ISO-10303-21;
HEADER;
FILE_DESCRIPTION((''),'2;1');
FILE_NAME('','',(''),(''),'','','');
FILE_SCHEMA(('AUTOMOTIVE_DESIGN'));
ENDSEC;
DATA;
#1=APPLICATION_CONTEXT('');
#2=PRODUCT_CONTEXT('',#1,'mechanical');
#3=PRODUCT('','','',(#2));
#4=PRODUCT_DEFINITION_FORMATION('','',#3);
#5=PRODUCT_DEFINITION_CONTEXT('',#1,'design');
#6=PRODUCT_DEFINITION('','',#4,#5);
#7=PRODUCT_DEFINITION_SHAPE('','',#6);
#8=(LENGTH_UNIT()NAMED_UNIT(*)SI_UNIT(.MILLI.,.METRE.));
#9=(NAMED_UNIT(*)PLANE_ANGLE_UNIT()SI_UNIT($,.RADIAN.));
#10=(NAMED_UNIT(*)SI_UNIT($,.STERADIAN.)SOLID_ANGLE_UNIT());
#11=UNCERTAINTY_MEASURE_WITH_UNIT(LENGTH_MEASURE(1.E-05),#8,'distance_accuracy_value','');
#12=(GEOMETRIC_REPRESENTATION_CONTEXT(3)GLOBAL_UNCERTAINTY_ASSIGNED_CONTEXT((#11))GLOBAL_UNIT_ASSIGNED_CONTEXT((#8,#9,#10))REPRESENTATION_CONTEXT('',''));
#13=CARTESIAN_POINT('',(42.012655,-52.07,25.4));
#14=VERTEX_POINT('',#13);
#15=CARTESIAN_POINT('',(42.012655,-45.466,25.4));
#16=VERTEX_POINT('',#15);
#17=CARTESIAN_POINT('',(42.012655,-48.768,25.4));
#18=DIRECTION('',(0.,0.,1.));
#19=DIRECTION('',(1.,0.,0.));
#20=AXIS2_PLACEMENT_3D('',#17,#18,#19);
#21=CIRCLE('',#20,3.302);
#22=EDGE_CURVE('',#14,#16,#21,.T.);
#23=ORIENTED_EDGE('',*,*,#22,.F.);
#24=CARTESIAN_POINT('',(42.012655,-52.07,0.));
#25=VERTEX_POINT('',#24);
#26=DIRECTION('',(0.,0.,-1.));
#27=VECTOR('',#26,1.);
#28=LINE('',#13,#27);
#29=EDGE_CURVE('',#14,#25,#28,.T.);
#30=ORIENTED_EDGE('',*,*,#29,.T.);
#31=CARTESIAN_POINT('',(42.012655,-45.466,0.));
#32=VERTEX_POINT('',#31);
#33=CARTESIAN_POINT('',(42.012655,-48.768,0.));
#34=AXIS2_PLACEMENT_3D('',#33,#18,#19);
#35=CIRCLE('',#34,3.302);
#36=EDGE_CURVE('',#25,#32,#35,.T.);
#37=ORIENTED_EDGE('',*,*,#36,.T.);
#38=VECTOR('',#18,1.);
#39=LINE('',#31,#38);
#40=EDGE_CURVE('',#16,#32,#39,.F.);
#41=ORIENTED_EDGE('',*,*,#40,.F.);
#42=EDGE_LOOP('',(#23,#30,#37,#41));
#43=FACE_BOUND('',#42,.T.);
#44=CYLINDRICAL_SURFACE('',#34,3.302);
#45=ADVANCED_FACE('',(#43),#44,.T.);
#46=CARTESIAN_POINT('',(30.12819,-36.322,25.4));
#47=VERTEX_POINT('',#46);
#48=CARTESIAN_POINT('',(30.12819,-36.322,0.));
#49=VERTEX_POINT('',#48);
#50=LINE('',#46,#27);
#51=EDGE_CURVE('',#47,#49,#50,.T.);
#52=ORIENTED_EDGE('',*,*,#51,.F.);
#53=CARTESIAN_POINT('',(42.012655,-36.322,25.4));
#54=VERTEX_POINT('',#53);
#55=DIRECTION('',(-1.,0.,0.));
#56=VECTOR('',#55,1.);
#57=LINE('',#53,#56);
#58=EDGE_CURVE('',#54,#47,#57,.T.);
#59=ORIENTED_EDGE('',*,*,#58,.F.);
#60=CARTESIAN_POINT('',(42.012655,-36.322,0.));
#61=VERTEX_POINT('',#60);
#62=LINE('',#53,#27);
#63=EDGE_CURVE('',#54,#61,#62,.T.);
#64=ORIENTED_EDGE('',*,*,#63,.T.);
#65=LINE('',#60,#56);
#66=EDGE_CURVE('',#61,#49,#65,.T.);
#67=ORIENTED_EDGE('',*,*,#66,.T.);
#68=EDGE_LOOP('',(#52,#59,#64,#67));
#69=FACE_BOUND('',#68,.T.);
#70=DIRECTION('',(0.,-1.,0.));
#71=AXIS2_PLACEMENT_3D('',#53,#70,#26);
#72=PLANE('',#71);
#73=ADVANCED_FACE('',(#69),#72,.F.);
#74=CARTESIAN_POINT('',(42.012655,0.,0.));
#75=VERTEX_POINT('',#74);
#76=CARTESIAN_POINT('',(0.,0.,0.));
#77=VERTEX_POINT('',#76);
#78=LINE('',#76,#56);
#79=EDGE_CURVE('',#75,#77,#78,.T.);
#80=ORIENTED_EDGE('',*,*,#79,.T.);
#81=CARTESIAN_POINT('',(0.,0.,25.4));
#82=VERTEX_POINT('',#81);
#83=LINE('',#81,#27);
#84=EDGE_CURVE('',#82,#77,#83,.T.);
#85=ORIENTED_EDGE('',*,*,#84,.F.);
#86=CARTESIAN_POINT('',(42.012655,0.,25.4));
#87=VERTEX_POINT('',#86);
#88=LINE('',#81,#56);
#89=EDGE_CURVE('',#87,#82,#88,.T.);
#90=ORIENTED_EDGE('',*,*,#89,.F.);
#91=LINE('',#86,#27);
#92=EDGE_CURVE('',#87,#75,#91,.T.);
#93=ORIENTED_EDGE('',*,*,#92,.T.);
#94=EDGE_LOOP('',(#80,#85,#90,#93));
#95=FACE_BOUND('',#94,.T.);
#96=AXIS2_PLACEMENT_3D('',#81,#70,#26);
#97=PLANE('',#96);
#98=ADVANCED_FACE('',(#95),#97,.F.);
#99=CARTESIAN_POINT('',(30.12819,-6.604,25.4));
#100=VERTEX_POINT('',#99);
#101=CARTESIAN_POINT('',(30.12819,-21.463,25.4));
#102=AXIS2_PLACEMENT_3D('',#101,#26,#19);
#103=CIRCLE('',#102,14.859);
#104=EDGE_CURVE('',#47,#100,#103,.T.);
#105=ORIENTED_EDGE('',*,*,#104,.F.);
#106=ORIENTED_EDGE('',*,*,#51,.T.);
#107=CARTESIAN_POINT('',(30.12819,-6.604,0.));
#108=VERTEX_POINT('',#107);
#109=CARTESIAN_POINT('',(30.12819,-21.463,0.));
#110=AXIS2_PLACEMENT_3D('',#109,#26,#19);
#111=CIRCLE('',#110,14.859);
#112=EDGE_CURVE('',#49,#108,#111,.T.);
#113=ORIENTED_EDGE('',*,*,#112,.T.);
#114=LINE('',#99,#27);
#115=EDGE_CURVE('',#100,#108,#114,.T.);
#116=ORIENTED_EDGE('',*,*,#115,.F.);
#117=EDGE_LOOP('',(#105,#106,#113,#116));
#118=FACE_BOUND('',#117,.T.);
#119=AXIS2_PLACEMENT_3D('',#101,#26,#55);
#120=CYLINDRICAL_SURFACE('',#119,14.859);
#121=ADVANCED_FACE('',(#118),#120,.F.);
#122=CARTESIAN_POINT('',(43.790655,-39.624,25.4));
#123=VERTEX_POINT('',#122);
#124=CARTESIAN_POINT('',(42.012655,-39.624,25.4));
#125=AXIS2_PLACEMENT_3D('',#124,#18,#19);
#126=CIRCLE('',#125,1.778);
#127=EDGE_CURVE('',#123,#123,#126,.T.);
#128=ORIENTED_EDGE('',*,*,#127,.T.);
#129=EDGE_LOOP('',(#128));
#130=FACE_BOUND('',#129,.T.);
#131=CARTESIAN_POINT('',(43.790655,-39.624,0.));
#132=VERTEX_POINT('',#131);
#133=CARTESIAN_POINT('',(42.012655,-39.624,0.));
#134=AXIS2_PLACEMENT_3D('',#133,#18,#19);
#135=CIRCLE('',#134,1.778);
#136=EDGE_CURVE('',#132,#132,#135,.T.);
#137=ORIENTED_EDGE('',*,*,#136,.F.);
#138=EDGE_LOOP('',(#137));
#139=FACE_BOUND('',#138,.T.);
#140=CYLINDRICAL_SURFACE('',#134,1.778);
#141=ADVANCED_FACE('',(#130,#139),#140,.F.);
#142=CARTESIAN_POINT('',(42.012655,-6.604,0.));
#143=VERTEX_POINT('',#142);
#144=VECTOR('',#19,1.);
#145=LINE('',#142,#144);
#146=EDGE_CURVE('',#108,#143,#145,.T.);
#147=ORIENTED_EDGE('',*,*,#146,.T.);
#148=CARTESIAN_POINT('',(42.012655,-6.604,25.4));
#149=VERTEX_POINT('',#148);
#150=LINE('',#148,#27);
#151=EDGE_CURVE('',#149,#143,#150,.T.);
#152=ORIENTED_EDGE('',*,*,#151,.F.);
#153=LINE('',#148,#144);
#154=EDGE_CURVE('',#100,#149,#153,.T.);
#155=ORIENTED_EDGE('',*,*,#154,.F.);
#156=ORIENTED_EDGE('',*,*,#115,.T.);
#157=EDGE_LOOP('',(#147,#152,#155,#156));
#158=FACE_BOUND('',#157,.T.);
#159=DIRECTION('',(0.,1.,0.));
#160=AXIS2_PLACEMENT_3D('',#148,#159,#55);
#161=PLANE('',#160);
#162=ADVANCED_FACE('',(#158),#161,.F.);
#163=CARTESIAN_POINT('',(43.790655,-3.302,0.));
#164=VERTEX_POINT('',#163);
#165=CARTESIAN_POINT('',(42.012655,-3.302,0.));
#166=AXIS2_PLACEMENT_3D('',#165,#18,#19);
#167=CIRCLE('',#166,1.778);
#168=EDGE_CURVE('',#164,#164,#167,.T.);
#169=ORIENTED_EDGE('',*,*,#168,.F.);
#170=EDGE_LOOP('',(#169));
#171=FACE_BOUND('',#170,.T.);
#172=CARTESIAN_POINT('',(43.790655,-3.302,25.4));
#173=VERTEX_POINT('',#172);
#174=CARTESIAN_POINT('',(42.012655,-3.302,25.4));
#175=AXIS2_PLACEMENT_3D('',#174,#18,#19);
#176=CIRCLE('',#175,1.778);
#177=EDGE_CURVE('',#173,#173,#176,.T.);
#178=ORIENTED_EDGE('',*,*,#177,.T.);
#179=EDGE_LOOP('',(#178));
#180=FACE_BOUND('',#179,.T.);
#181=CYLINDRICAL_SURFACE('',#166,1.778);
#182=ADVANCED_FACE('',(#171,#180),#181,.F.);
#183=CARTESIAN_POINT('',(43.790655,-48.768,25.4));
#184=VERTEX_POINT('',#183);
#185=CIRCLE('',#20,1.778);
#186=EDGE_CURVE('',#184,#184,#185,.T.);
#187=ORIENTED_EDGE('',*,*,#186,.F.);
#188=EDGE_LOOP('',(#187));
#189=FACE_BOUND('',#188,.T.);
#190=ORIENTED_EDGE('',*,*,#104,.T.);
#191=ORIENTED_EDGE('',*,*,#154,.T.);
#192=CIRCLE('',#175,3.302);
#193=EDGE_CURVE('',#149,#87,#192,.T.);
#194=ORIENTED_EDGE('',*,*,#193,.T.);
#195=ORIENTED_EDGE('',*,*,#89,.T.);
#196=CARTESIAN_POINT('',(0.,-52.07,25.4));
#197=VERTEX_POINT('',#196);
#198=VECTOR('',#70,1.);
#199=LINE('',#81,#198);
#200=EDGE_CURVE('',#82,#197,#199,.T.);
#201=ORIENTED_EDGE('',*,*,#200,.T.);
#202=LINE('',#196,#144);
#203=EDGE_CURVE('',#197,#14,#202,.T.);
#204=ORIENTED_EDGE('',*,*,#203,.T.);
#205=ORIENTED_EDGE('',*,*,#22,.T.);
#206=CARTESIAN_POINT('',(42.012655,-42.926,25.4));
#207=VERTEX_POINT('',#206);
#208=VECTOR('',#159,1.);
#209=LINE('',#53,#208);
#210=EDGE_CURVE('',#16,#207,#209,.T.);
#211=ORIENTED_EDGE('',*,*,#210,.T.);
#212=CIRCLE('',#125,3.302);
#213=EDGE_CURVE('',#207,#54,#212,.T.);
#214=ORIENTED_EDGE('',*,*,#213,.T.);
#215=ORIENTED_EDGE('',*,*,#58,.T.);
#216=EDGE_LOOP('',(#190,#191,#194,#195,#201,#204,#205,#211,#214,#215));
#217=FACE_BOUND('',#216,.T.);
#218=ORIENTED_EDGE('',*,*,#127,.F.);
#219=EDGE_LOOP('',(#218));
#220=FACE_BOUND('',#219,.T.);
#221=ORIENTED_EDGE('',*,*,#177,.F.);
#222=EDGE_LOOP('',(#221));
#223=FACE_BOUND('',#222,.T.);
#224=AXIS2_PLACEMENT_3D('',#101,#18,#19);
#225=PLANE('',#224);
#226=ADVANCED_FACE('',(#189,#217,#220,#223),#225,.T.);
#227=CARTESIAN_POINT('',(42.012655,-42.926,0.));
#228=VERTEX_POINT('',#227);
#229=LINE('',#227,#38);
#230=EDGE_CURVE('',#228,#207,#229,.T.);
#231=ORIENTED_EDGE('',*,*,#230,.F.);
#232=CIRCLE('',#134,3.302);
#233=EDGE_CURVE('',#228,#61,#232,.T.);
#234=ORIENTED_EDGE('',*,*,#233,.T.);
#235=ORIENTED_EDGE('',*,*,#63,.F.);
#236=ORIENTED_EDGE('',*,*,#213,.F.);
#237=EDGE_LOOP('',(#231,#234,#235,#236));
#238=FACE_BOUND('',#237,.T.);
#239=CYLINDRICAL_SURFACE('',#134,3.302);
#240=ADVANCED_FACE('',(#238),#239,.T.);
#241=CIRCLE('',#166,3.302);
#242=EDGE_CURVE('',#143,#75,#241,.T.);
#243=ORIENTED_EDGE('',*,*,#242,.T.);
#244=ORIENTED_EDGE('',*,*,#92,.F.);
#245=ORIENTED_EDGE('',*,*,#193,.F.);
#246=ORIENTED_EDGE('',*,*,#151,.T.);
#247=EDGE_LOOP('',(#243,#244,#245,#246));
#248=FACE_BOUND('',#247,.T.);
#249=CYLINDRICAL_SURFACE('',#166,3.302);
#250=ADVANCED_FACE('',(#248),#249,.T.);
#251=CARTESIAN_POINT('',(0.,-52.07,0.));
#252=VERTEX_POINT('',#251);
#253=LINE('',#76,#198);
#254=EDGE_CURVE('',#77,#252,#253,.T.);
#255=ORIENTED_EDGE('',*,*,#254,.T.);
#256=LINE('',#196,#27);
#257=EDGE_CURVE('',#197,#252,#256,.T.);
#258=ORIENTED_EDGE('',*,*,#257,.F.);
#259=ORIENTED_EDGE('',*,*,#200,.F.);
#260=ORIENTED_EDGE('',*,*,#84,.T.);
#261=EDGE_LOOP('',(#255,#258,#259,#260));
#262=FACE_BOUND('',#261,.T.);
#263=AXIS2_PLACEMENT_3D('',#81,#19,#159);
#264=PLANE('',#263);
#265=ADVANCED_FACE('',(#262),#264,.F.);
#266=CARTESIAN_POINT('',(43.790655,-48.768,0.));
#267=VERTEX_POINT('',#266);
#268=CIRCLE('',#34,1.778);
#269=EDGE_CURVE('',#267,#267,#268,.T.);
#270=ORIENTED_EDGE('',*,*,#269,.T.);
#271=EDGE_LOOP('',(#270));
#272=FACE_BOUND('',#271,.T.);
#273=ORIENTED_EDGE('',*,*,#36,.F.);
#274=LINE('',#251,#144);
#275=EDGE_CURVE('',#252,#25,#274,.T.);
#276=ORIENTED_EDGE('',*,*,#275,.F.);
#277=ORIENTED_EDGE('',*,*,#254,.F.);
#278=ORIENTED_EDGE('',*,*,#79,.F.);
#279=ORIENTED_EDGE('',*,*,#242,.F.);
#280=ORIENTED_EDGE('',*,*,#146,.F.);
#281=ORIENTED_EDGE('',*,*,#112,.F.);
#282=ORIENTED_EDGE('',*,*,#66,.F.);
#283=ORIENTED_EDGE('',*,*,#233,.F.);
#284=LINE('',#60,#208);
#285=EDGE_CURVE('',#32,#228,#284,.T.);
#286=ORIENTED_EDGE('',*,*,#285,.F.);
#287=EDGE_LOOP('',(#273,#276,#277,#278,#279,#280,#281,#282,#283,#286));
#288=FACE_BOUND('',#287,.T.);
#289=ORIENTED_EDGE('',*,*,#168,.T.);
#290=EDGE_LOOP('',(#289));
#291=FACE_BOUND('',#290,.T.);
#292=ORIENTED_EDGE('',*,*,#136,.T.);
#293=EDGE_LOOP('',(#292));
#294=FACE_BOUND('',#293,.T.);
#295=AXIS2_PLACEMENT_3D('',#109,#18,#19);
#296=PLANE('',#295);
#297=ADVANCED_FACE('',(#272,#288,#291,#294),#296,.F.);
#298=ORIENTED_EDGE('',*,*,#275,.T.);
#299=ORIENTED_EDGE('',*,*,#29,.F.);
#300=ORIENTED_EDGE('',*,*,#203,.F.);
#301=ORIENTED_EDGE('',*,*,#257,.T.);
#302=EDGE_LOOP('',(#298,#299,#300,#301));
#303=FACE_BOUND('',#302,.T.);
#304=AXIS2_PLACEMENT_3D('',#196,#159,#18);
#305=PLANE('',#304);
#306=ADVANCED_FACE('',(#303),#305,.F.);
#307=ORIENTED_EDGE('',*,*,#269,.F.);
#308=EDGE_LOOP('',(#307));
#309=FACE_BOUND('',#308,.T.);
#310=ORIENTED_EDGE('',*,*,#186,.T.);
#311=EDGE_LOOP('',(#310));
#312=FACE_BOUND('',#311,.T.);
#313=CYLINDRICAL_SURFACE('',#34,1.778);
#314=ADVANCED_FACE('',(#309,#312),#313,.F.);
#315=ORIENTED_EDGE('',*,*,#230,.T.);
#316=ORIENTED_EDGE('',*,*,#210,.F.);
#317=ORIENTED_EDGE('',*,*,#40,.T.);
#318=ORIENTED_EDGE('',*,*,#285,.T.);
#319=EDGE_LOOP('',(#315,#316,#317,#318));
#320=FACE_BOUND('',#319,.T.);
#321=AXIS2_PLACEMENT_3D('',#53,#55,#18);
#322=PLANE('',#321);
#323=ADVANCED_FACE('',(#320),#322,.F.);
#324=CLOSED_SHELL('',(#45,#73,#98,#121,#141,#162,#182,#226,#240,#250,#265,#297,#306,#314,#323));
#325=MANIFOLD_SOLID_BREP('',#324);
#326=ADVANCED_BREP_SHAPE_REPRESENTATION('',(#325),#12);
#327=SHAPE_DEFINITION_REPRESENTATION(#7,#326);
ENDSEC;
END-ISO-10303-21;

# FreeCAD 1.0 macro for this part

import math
import FreeCAD as App
import Part
import Sketcher
Q = App.Units.Quantity

doc = App.newDocument("Part")
body = doc.addObject("PartDesign::Body", "Body")

# Sketch on XY plane
sketch1 = doc.addObject("Sketcher::SketchObject", "Sketch")
body.addObject(sketch1)
sketch1.AttachmentSupport = (doc.XY_Plane, [""])
sketch1.MapMode = "FlatFace"
sketch1.addGeometry([
    Part.LineSegment(App.Vector(30, -7, 0), App.Vector(42, -7, 0)),  # 0
    Part.LineSegment(App.Vector(42, -7, 0), App.Vector(42, 0, 0)),  # 1
    Part.LineSegment(App.Vector(42, 0, 0), App.Vector(0, 0, 0)),  # 2
    Part.LineSegment(App.Vector(0, 0, 0), App.Vector(0, -52, 0)),  # 3
    Part.LineSegment(App.Vector(0, -52, 0), App.Vector(42, -52, 0)),  # 4
    Part.LineSegment(App.Vector(42, -52, 0), App.Vector(42, -36, 0)),  # 5
    Part.LineSegment(App.Vector(42, -36, 0), App.Vector(30, -36, 0)),  # 6
    Part.ArcOfCircle(Part.Circle(App.Vector(30, -21, 0), App.Vector(0, 0, 1), 15), math.radians(90), math.radians(270)),  # 7
], False)
sketch1.addConstraint([
    Sketcher.Constraint("Coincident", 0, 2, 1, 1),
    Sketcher.Constraint("Coincident", 1, 2, 2, 1),
    Sketcher.Constraint("Coincident", 2, 2, 3, 1),
    Sketcher.Constraint("Coincident", 3, 2, 4, 1),
    Sketcher.Constraint("Coincident", 4, 2, 5, 1),
    Sketcher.Constraint("Coincident", 5, 2, 6, 1),
    Sketcher.Constraint("Tangent", 6, 2, 7, 2),
    Sketcher.Constraint("Tangent", 7, 1, 0, 1),
    Sketcher.Constraint("Horizontal", 0),
    Sketcher.Constraint("Vertical", 1),
    Sketcher.Constraint("Horizontal", 2),
    Sketcher.Constraint("Vertical", 3),
    Sketcher.Constraint("Horizontal", 4),
    Sketcher.Constraint("Vertical", 5),
    Sketcher.Constraint("Horizontal", 6),
    Sketcher.Constraint("Coincident", 2, 2, -1, 1),
    Sketcher.Constraint("Vertical", 1, 2, 4, 2),
    Sketcher.Constraint("Radius", 7, Q("0.585 in")),
    Sketcher.Constraint("DistanceY", 1, 1, 1, 2, Q("0.26 in")),
    Sketcher.Constraint("DistanceY", 3, 2, 3, 1, Q("2.05 in")),
    Sketcher.Constraint("DistanceX", 0, 1, 0, 2, 11.884465),
    Sketcher.Constraint("DistanceX", 2, 2, 2, 1, 42.012655),
])
pad1 = doc.addObject("PartDesign::Pad", "Pad")
body.addObject(pad1)
pad1.Profile = sketch1
pad1.Length = Q("1 in")

# Sketch on XY plane
sketch2 = doc.addObject("Sketcher::SketchObject", "Sketch001")
body.addObject(sketch2)
sketch2.AttachmentSupport = (doc.XY_Plane, [""])
sketch2.MapMode = "FlatFace"
sketch2.AttachmentOffset = App.Placement(App.Vector(0, 0, 1 * 25.4), App.Rotation())
sketch2.addGeometry([
    Part.Circle(App.Vector(42, -3.3, 0), App.Vector(0, 0, 1), 3.3),
    Part.Circle(App.Vector(42, -39.6, 0), App.Vector(0, 0, 1), 3.3),
    Part.Circle(App.Vector(42, -48.8, 0), App.Vector(0, 0, 1), 3.3),
], False)
sketch2.addConstraint([
    Sketcher.Constraint("Equal", 0, 1),
    Sketcher.Constraint("Equal", 1, 2),
    Sketcher.Constraint("Vertical", 0, 3, 1, 3),
    Sketcher.Constraint("Vertical", 1, 3, 2, 3),
    Sketcher.Constraint("Diameter", 0, Q("0.26 in")),
    Sketcher.Constraint("DistanceY", 0, 3, -1, 1, Q("0.13 in")),
    Sketcher.Constraint("DistanceY", 1, 3, -1, 1, Q("1.56 in")),
    Sketcher.Constraint("DistanceY", 2, 3, -1, 1, Q("1.92 in")),
    Sketcher.Constraint("DistanceX", -1, 1, 0, 3, 42.012655),
])
pad2 = doc.addObject("PartDesign::Pad", "Pad001")
body.addObject(pad2)
pad2.Profile = sketch2
pad2.Length = Q("1 in")
pad2.Reversed = True

# Sketch on XY plane
sketch3 = doc.addObject("Sketcher::SketchObject", "Sketch002")
body.addObject(sketch3)
sketch3.AttachmentSupport = (doc.XY_Plane, [""])
sketch3.MapMode = "FlatFace"
sketch3.AttachmentOffset = App.Placement(App.Vector(0, 0, 1 * 25.4), App.Rotation())
sketch3.addGeometry([
    Part.Circle(App.Vector(42, -3.3, 0), App.Vector(0, 0, 1), 1.8),
    Part.Circle(App.Vector(42, -39.6, 0), App.Vector(0, 0, 1), 1.8),
    Part.Circle(App.Vector(42, -48.8, 0), App.Vector(0, 0, 1), 1.8),
], False)
sketch3.addConstraint([
    Sketcher.Constraint("Equal", 0, 1),
    Sketcher.Constraint("Equal", 1, 2),
    Sketcher.Constraint("Vertical", 0, 3, 1, 3),
    Sketcher.Constraint("Vertical", 1, 3, 2, 3),
    Sketcher.Constraint("Diameter", 0, Q("0.14 in")),
    Sketcher.Constraint("DistanceY", 0, 3, -1, 1, Q("0.13 in")),
    Sketcher.Constraint("DistanceY", 1, 3, -1, 1, Q("1.56 in")),
    Sketcher.Constraint("DistanceY", 2, 3, -1, 1, Q("1.92 in")),
    Sketcher.Constraint("DistanceX", -1, 1, 0, 3, 42.012655),
])
pocket1 = doc.addObject("PartDesign::Pocket", "Pocket")
body.addObject(pocket1)
pocket1.Profile = sketch3
pocket1.Type = "ThroughAll"

doc.recompute()
